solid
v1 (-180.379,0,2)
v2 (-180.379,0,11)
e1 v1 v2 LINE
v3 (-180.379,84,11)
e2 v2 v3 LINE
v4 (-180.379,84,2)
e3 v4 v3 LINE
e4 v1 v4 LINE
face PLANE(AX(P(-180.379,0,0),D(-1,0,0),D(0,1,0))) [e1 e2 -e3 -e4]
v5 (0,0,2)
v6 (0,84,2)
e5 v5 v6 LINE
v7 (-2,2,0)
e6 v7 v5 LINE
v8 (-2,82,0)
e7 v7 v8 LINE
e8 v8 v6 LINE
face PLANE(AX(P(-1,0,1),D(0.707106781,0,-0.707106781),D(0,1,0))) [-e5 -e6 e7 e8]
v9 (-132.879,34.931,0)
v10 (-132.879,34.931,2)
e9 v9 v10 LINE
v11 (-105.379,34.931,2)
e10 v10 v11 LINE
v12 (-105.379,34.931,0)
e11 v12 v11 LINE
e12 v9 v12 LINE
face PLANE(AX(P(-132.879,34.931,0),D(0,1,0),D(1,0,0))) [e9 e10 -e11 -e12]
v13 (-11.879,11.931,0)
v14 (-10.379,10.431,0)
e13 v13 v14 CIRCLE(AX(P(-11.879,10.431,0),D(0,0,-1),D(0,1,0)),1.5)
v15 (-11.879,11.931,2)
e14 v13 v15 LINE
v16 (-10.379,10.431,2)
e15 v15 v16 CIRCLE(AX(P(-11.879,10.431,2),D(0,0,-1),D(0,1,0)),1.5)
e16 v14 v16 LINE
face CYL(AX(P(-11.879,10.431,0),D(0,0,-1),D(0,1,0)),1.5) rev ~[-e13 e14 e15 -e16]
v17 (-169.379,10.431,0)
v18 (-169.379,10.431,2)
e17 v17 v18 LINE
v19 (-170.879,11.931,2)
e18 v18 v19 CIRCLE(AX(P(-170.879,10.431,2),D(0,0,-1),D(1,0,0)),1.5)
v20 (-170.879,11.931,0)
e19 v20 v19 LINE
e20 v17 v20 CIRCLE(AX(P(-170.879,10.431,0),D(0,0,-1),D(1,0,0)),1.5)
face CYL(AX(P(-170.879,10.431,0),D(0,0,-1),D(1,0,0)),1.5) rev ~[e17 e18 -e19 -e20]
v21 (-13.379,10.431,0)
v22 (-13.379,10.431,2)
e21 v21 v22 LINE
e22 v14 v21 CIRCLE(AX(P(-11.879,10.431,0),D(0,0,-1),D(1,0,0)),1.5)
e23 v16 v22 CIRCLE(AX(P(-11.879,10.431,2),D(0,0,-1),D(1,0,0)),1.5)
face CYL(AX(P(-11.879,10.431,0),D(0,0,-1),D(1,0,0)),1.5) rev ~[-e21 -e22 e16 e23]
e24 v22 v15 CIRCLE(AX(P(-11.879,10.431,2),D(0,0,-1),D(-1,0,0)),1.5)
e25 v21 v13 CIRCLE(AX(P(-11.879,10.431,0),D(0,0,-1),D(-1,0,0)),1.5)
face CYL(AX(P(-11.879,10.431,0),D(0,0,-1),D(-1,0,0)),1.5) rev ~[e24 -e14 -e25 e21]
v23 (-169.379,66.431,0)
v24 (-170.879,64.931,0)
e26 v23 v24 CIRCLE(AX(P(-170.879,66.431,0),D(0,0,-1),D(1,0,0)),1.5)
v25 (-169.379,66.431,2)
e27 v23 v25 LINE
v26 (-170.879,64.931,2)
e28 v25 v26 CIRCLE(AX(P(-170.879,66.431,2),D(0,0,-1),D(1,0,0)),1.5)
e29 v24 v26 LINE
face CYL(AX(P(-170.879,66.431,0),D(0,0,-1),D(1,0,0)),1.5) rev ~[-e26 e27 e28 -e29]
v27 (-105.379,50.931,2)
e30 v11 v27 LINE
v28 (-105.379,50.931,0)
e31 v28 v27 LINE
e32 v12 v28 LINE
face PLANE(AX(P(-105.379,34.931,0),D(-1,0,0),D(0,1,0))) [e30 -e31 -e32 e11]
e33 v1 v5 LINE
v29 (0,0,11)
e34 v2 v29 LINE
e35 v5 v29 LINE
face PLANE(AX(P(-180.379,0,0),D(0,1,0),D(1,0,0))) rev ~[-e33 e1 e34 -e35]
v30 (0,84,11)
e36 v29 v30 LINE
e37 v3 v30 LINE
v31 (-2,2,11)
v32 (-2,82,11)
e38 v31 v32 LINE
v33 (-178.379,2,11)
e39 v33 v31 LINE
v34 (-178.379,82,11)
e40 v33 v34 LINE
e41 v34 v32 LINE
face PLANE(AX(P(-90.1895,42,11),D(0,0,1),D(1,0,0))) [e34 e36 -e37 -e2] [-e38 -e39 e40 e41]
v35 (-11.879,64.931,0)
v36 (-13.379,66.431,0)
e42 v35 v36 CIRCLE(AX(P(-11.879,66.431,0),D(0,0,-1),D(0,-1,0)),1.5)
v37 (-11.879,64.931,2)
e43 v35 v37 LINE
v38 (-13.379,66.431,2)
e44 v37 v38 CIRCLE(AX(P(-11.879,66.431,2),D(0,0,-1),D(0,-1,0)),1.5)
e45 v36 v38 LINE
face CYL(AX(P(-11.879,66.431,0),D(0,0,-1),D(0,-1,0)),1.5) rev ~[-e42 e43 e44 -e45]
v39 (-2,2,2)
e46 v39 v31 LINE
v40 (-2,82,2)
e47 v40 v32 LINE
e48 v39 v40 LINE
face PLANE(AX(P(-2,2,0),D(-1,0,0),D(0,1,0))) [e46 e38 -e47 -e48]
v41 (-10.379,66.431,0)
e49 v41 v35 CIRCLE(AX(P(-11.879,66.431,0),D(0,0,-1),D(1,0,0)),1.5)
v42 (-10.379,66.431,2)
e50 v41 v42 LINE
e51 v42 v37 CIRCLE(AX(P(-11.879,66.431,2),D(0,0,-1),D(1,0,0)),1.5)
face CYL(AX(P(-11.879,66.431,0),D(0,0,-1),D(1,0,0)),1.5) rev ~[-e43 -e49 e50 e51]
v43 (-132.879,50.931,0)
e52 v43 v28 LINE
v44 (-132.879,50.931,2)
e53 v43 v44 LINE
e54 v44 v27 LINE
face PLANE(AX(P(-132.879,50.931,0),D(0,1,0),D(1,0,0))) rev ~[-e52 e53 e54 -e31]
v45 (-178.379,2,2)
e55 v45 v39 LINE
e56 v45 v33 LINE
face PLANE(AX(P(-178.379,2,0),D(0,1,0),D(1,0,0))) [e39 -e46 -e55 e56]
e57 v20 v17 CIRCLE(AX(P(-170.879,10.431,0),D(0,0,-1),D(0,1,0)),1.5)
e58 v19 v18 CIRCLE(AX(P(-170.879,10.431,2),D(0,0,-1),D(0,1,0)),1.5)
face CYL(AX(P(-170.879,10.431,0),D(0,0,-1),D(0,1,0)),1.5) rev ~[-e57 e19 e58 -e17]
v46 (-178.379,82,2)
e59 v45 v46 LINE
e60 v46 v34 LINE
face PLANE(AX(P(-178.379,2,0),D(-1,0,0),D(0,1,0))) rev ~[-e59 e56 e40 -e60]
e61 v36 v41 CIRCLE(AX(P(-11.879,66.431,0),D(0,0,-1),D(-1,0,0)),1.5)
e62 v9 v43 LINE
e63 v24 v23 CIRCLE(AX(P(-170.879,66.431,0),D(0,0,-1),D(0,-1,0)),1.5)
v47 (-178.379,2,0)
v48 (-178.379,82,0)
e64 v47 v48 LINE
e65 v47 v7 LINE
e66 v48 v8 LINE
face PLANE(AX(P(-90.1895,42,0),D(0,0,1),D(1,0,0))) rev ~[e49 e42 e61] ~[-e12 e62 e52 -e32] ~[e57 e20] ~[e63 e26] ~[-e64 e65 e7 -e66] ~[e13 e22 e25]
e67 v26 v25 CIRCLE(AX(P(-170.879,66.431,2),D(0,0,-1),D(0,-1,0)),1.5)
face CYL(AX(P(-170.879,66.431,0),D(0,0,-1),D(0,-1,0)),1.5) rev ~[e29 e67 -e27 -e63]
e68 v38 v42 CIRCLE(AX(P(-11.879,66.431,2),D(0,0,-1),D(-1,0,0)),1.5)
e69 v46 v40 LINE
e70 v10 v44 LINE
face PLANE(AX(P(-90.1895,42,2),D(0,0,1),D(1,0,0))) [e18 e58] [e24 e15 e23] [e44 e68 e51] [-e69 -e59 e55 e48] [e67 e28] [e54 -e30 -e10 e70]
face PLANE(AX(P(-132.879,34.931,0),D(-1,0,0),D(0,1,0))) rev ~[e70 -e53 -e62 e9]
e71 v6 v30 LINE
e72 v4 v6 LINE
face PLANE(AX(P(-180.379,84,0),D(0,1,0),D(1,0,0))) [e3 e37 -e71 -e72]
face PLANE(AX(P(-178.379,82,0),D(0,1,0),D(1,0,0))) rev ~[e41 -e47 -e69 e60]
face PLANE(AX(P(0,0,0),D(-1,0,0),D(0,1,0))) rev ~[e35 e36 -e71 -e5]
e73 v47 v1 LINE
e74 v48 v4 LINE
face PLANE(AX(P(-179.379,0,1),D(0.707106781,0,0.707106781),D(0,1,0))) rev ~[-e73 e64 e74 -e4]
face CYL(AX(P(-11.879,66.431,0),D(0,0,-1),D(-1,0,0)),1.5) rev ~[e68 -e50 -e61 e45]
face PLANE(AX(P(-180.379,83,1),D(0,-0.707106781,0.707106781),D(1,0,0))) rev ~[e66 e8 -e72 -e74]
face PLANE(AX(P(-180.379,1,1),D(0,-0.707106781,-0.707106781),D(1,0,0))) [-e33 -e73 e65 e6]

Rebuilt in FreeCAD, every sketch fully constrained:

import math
import FreeCAD as App
import Part
import Sketcher
Q = App.Units.Quantity


def edges_at(feature, points):
    """Names of the edges that pass closest to the given points."""
    edges = feature.Shape.Edges
    near = lambda p: min(range(len(edges)), key=lambda i: edges[i].distToShape(Part.Vertex(*p))[0])
    return sorted({f"Edge{near(p) + 1}" for p in points})


def add_polygon(sketch, points):
    """Adds a closed chain of lines whose ends are joined by coincident constraints."""
    first, n = sketch.GeometryCount, len(points)
    for a, b in zip(points, points[1:] + points[:1]):
        sketch.addGeometry(Part.LineSegment(App.Vector(*a, 0), App.Vector(*b, 0)), False)
    for i in range(n):
        sketch.addConstraint(Sketcher.Constraint("Coincident", first + i, 2, first + (i + 1) % n, 1))

doc = App.newDocument("Part")
body = doc.addObject("PartDesign::Body", "Body")

sketch1 = body.newObject("Sketcher::SketchObject", "Sketch")
sketch1.AttachmentSupport = (doc.getObject("XY_Plane"), [""])
sketch1.MapMode = "FlatFace"
add_polygon(sketch1, [(-180.379, 84), (-180.379, 0), (0, 0), (0, 84)])
add_polygon(sketch1, [(-2, 2), (-178.379, 2), (-178.379, 82), (-2, 82)])
sketch1.addConstraint([
    Sketcher.Constraint("Vertical", 0),
    Sketcher.Constraint("Horizontal", 1),
    Sketcher.Constraint("Vertical", 2),
    Sketcher.Constraint("Horizontal", 3),
    Sketcher.Constraint("Horizontal", 4),
    Sketcher.Constraint("Vertical", 5),
    Sketcher.Constraint("Horizontal", 6),
    Sketcher.Constraint("Vertical", 7),
    Sketcher.Constraint("Coincident", 1, 2, -1, 1),
    Sketcher.Constraint("DistanceY", 0, 2, 0, 1, Q("84 mm")),
    Sketcher.Constraint("DistanceY", 5, 1, 5, 2, Q("80 mm")),
    Sketcher.Constraint("DistanceY", -1, 1, 4, 2, Q("2 mm")),
    Sketcher.Constraint("DistanceX", 6, 2, -1, 1, Q("2 mm")),
    Sketcher.Constraint("DistanceX", 0, 2, 4, 2, Q("2 mm")),
    Sketcher.Constraint("DistanceX", 1, 1, 1, 2, Q("180.379 mm")),
])
pad1 = body.newObject("PartDesign::Pad", "Pad")
pad1.Profile = sketch1
pad1.Length = 11

sketch2 = body.newObject("Sketcher::SketchObject", "Sketch001")
sketch2.AttachmentSupport = (doc.getObject("XY_Plane"), [""])
sketch2.MapMode = "FlatFace"
add_polygon(sketch2, [(-178.379, 82), (-178.379, 2), (-2, 2), (-2, 82)])
sketch2.addGeometry(Part.ArcOfCircle(Part.Circle(App.Vector(-170.879, 10.431, 0), App.Vector(0, 0, 1), 1.5), math.radians(90), math.radians(360)), False)
sketch2.addGeometry(Part.ArcOfCircle(Part.Circle(App.Vector(-170.879, 10.431, 0), App.Vector(0, 0, 1), 1.5), math.radians(0), math.radians(90)), False)
sketch2.addGeometry(Part.ArcOfCircle(Part.Circle(App.Vector(-11.879, 10.431, 0), App.Vector(0, 0, 1), 1.5), math.radians(180), math.radians(360)), False)
sketch2.addGeometry(Part.ArcOfCircle(Part.Circle(App.Vector(-11.879, 10.431, 0), App.Vector(0, 0, 1), 1.5), math.radians(90), math.radians(180)), False)
sketch2.addGeometry(Part.ArcOfCircle(Part.Circle(App.Vector(-11.879, 10.431, 0), App.Vector(0, 0, 1), 1.5), math.radians(0), math.radians(90)), False)
add_polygon(sketch2, [(-105.379, 34.931), (-132.879, 34.931), (-132.879, 50.931), (-105.379, 50.931)])
sketch2.addGeometry(Part.ArcOfCircle(Part.Circle(App.Vector(-170.879, 66.431, 0), App.Vector(0, 0, 1), 1.5), math.radians(0), math.radians(270)), False)
sketch2.addGeometry(Part.ArcOfCircle(Part.Circle(App.Vector(-170.879, 66.431, 0), App.Vector(0, 0, 1), 1.5), math.radians(-90), math.radians(0)), False)
sketch2.addGeometry(Part.ArcOfCircle(Part.Circle(App.Vector(-11.879, 66.431, 0), App.Vector(0, 0, 1), 1.5), math.radians(-90), math.radians(0)), False)
sketch2.addGeometry(Part.ArcOfCircle(Part.Circle(App.Vector(-11.879, 66.431, 0), App.Vector(0, 0, 1), 1.5), math.radians(180), math.radians(270)), False)
sketch2.addGeometry(Part.ArcOfCircle(Part.Circle(App.Vector(-11.879, 66.431, 0), App.Vector(0, 0, 1), 1.5), math.radians(0), math.radians(180)), False)
sketch2.addConstraint([
    Sketcher.Constraint("Tangent", 4, 1, 5, 2),
    Sketcher.Constraint("Coincident", 5, 1, 4, 2),
    Sketcher.Constraint("Tangent", 6, 1, 7, 2),
    Sketcher.Constraint("Tangent", 7, 1, 8, 2),
    Sketcher.Constraint("Tangent", 8, 1, 6, 2),
    Sketcher.Constraint("Tangent", 13, 1, 14, 2),
    Sketcher.Constraint("Coincident", 14, 1, 13, 2),
    Sketcher.Constraint("Tangent", 15, 1, 16, 2),
    Sketcher.Constraint("Tangent", 16, 1, 17, 2),
    Sketcher.Constraint("Tangent", 17, 1, 15, 2),
    Sketcher.Constraint("Vertical", 0),
    Sketcher.Constraint("Horizontal", 1),
    Sketcher.Constraint("Vertical", 2),
    Sketcher.Constraint("Horizontal", 3),
    Sketcher.Constraint("Horizontal", 9),
    Sketcher.Constraint("Vertical", 10),
    Sketcher.Constraint("Horizontal", 11),
    Sketcher.Constraint("Vertical", 12),
    Sketcher.Constraint("Equal", 5, 6),
    Sketcher.Constraint("Equal", 8, 13),
    Sketcher.Constraint("Equal", 14, 15),
    Sketcher.Constraint("Horizontal", 5, 3, 6, 3),
    Sketcher.Constraint("Horizontal", 14, 3, 15, 3),
    Sketcher.Constraint("Horizontal", 8, 3, 5, 1),
    Sketcher.Constraint("Horizontal", 5, 1, 6, 1),
    Sketcher.Constraint("Horizontal", 6, 1, 8, 1),
    Sketcher.Constraint("Horizontal", 17, 3, 13, 1),
    Sketcher.Constraint("Horizontal", 13, 1, 16, 1),
    Sketcher.Constraint("Horizontal", 16, 1, 17, 1),
    Sketcher.Constraint("Vertical", 5, 3, 13, 3),
    Sketcher.Constraint("Vertical", 8, 3, 15, 3),
    Sketcher.Constraint("Vertical", 14, 3, 4, 1),
    Sketcher.Constraint("Vertical", 17, 3, 7, 1),
    Sketcher.Constraint("Vertical", 4, 1, 14, 1),
    Sketcher.Constraint("Vertical", 7, 1, 15, 1),
    Sketcher.Constraint("Radius", 4, Q("1.5 mm")),
    Sketcher.Constraint("DistanceY", 0, 2, 0, 1, Q("80 mm")),
    Sketcher.Constraint("DistanceY", 10, 1, 10, 2, Q("16 mm")),
    Sketcher.Constraint("DistanceX", 9, 2, 9, 1, Q("27.5 mm")),
    Sketcher.Constraint("DistanceY", -1, 1, 0, 2, Q("2 mm")),
    Sketcher.Constraint("DistanceX", 1, 2, -1, 1, Q("2 mm")),
    Sketcher.Constraint("DistanceX", 4, 3, 6, 3, Q("159 mm")),
    Sketcher.Constraint("DistanceY", 4, 3, 13, 3, Q("56 mm")),
    Sketcher.Constraint("DistanceX", 0, 2, 5, 1, Q("9 mm")),
    Sketcher.Constraint("DistanceX", 4, 1, 9, 2, Q("38 mm")),
    Sketcher.Constraint("DistanceY", 4, 1, 9, 2, Q("23 mm")),
    Sketcher.Constraint("DistanceX", 1, 1, 1, 2, Q("176.379 mm")),
    Sketcher.Constraint("DistanceY", -1, 1, 4, 3, Q("10.431 mm")),
])
pad2 = body.newObject("PartDesign::Pad", "Pad001")
pad2.Profile = sketch2
pad2.Length = 2
doc.recompute()

chamfer = body.newObject("PartDesign::Chamfer", "Chamfer")
chamfer.Base = (pad2, edges_at(pad2, [
    (0, 42, 0),
    (-90.189, 84, 0),
    (-90.189, 0, 0),
    (-180.379, 42, 0),
]))
chamfer.Size = 2

doc.recompute()
